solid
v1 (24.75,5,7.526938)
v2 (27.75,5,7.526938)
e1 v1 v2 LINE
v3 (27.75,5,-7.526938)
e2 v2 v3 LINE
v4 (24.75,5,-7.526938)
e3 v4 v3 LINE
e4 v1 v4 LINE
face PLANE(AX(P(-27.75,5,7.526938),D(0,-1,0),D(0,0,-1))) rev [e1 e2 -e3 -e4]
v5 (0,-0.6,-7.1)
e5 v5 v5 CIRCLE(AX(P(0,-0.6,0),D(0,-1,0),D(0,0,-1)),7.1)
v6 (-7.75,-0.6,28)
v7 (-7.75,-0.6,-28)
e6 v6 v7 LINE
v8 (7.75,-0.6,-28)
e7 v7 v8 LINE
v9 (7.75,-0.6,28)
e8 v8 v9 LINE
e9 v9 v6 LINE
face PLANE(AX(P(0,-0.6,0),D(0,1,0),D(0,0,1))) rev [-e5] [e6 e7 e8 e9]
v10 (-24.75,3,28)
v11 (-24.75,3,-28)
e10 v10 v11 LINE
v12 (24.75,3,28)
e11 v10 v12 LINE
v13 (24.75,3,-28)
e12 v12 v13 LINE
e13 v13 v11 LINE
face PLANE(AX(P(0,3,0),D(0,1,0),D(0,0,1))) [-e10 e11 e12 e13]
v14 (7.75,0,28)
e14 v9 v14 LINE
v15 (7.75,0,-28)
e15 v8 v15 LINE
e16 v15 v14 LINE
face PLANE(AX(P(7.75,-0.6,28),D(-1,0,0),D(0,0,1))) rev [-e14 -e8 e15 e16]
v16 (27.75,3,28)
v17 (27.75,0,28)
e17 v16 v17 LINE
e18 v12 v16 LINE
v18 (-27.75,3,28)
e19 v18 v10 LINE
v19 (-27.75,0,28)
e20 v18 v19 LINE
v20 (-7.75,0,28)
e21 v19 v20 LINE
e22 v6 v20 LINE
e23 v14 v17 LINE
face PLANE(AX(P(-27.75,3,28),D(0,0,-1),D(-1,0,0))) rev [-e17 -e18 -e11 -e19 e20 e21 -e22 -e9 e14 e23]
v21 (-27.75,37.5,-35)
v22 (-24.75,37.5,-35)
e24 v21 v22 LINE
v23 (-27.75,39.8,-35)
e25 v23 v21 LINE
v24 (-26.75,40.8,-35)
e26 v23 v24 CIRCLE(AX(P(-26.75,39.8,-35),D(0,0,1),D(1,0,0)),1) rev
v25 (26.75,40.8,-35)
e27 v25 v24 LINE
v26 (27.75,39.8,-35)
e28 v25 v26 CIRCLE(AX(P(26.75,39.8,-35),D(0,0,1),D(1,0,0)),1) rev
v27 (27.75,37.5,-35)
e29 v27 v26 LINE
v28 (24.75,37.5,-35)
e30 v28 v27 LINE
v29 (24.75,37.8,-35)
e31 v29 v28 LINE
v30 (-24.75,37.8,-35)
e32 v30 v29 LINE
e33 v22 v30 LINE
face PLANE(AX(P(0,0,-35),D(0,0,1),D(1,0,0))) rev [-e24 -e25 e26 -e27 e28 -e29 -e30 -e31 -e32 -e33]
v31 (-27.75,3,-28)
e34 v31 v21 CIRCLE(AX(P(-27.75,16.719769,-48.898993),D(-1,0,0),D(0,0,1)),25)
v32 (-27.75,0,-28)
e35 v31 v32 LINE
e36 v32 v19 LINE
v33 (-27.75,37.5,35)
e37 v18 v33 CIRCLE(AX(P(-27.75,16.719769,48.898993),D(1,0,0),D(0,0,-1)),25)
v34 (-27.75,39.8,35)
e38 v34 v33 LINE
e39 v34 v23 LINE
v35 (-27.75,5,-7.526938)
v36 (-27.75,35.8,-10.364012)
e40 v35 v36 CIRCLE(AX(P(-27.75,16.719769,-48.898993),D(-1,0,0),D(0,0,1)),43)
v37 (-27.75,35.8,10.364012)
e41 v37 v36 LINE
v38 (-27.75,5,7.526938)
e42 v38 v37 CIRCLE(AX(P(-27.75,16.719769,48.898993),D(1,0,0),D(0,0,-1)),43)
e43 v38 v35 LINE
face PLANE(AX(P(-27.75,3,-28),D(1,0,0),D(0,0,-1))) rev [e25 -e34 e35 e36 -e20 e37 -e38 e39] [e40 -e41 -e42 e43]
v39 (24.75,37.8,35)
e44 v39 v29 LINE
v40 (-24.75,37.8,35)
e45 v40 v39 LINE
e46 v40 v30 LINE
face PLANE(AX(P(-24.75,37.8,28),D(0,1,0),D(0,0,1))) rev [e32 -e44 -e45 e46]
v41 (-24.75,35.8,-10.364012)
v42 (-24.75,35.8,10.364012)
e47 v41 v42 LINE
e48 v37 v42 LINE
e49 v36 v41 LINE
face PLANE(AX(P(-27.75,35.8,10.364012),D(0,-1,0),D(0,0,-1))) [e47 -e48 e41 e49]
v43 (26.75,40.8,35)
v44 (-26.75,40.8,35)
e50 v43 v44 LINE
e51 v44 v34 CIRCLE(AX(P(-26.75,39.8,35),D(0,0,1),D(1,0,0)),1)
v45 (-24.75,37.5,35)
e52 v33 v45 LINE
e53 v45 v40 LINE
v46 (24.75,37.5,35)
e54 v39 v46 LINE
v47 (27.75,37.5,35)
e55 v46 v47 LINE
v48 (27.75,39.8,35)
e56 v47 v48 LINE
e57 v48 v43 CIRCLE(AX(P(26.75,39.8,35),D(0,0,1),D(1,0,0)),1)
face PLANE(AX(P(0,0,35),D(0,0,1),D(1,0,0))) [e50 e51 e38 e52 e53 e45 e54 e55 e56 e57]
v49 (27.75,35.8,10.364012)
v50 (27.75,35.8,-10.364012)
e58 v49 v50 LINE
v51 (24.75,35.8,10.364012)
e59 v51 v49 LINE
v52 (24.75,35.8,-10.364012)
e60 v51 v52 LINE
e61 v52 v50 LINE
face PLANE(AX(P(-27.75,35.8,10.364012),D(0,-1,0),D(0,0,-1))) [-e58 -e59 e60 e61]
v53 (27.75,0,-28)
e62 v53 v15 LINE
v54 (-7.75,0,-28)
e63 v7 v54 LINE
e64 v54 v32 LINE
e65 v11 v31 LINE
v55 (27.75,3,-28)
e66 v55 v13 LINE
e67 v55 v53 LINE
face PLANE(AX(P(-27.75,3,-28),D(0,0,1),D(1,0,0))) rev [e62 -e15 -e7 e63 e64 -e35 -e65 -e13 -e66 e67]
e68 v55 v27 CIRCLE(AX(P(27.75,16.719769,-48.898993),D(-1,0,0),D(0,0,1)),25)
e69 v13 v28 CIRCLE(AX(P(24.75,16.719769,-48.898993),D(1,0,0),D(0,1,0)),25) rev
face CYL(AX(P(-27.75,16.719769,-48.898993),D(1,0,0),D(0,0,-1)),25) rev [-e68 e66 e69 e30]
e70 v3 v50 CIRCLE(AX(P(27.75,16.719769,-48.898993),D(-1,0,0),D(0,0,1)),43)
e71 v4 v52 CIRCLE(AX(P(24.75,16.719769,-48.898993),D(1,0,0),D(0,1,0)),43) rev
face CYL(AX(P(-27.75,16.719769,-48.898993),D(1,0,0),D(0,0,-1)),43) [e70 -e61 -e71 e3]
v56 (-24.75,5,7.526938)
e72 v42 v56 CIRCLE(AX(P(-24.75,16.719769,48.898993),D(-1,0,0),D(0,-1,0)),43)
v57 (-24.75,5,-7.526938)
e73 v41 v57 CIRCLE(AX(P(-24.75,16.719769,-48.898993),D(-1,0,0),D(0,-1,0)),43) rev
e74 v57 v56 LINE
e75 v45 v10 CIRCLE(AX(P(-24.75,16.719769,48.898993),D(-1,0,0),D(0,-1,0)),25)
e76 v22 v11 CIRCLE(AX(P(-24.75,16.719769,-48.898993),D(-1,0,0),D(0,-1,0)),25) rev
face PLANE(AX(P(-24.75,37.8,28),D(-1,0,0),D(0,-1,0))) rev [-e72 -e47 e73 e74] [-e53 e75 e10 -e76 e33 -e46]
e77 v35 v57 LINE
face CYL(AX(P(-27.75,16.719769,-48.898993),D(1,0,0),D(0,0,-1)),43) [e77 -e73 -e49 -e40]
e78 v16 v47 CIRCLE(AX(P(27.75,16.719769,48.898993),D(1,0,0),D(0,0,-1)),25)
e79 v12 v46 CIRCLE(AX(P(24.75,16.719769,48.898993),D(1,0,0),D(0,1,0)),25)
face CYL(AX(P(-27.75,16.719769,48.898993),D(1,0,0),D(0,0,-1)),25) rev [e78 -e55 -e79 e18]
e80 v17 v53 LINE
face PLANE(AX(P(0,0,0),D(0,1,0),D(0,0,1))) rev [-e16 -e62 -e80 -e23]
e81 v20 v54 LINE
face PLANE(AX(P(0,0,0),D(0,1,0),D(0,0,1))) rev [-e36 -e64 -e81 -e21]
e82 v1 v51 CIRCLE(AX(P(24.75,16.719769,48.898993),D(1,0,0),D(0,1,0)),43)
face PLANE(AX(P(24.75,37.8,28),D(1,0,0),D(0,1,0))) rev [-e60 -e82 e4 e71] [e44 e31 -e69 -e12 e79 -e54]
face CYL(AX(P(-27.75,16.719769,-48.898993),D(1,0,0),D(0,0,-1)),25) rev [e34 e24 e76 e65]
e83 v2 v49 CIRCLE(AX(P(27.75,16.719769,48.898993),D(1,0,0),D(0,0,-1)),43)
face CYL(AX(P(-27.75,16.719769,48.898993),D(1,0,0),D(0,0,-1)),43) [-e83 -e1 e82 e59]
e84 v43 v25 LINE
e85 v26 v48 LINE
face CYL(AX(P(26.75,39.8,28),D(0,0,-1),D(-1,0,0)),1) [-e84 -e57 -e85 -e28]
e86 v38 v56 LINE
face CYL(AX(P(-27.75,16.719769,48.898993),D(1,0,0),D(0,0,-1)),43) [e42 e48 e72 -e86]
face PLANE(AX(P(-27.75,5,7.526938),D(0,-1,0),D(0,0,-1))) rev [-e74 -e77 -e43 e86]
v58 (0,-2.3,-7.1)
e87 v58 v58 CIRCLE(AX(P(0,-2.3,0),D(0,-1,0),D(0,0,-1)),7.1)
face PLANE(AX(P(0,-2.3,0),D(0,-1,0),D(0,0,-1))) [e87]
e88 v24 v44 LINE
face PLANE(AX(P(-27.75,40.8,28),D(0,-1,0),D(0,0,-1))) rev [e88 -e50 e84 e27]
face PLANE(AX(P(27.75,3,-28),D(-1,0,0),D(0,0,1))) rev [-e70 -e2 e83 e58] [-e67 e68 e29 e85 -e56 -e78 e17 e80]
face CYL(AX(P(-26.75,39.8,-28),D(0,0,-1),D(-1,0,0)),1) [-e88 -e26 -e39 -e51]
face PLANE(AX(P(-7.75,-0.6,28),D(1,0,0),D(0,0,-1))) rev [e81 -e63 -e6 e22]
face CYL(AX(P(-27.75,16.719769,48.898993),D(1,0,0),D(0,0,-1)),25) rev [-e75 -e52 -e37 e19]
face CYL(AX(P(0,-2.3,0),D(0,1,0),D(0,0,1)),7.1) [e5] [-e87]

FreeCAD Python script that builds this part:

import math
import FreeCAD as App
import Part
import Sketcher
from FreeCAD import Vector
Q = App.Units.Quantity


def edges_at(feature, points):
    """Names of the edges that pass closest to the given points."""
    edges = feature.Shape.Edges
    near = lambda p: min(range(len(edges)), key=lambda i: edges[i].distToShape(Part.Vertex(*p))[0])
    return sorted({f"Edge{near(p) + 1}" for p in points})

doc = App.newDocument("Part")
body = doc.addObject("PartDesign::Body", "Body")

# Sketch on XZ plane
sketch1 = body.newObject("Sketcher::SketchObject", "Sketch")
sketch1.AttachmentSupport = (doc.getObject("XZ_Plane"), [""])
sketch1.MapMode = "FlatFace"
sketch1.addGeometry(Part.LineSegment(Vector(-28, -28, 0), Vector(-28, 28, 0)), False)
sketch1.addGeometry(Part.LineSegment(Vector(-28, 28, 0), Vector(28, 28, 0)), False)
sketch1.addGeometry(Part.LineSegment(Vector(28, 28, 0), Vector(28, -28, 0)), False)
sketch1.addGeometry(Part.LineSegment(Vector(28, -28, 0), Vector(-28, -28, 0)), False)
sketch1.addConstraint(Sketcher.Constraint("Coincident", 0, 2, 1, 1))
sketch1.addConstraint(Sketcher.Constraint("Coincident", 1, 2, 2, 1))
sketch1.addConstraint(Sketcher.Constraint("Coincident", 2, 2, 3, 1))
sketch1.addConstraint(Sketcher.Constraint("Coincident", 3, 2, 0, 1))
sketch1.addConstraint(Sketcher.Constraint("Vertical", 0))
sketch1.addConstraint(Sketcher.Constraint("Horizontal", 1))
sketch1.addConstraint(Sketcher.Constraint("Vertical", 2))
sketch1.addConstraint(Sketcher.Constraint("Horizontal", 3))
sketch1.addConstraint(Sketcher.Constraint("Symmetric", 0, 2, 2, 2, -1, 1))
sketch1.addConstraint(Sketcher.Constraint("DistanceY", 0, 1, 0, 2, Q("56 mm")))
sketch1.addConstraint(Sketcher.Constraint("DistanceX", 1, 1, 1, 2, Q("55.5 mm")))
pad1 = body.newObject("PartDesign::Pad", "Pad")
pad1.Profile = sketch1
pad1.Length = 3
pad1.Reversed = True

# Sketch on XY plane
sketch2 = body.newObject("Sketcher::SketchObject", "Sketch001")
sketch2.AttachmentSupport = (doc.getObject("XY_Plane"), [""])
sketch2.MapMode = "FlatFace"
sketch2.addGeometry(Part.LineSegment(Vector(-27.8, 40.8, 0), Vector(-27.8, 3, 0)), False)
sketch2.addGeometry(Part.LineSegment(Vector(-27.8, 3, 0), Vector(-24.8, 3, 0)), False)
sketch2.addGeometry(Part.LineSegment(Vector(-24.8, 3, 0), Vector(-24.8, 37.8, 0)), False)
sketch2.addGeometry(Part.LineSegment(Vector(-24.8, 37.8, 0), Vector(24.8, 37.8, 0)), False)
sketch2.addGeometry(Part.LineSegment(Vector(24.8, 37.8, 0), Vector(24.8, 3, 0)), False)
sketch2.addGeometry(Part.LineSegment(Vector(24.8, 3, 0), Vector(27.8, 3, 0)), False)
sketch2.addGeometry(Part.LineSegment(Vector(27.8, 3, 0), Vector(27.8, 40.8, 0)), False)
sketch2.addGeometry(Part.LineSegment(Vector(27.8, 40.8, 0), Vector(-27.8, 40.8, 0)), False)
sketch2.addConstraint(Sketcher.Constraint("Coincident", 0, 2, 1, 1))
sketch2.addConstraint(Sketcher.Constraint("Coincident", 1, 2, 2, 1))
sketch2.addConstraint(Sketcher.Constraint("Coincident", 2, 2, 3, 1))
sketch2.addConstraint(Sketcher.Constraint("Coincident", 3, 2, 4, 1))
sketch2.addConstraint(Sketcher.Constraint("Coincident", 4, 2, 5, 1))
sketch2.addConstraint(Sketcher.Constraint("Coincident", 5, 2, 6, 1))
sketch2.addConstraint(Sketcher.Constraint("Coincident", 6, 2, 7, 1))
sketch2.addConstraint(Sketcher.Constraint("Coincident", 7, 2, 0, 1))
sketch2.addConstraint(Sketcher.Constraint("Vertical", 0))
sketch2.addConstraint(Sketcher.Constraint("Horizontal", 1))
sketch2.addConstraint(Sketcher.Constraint("Vertical", 2))
sketch2.addConstraint(Sketcher.Constraint("Horizontal", 3))
sketch2.addConstraint(Sketcher.Constraint("Vertical", 4))
sketch2.addConstraint(Sketcher.Constraint("Horizontal", 5))
sketch2.addConstraint(Sketcher.Constraint("Vertical", 6))
sketch2.addConstraint(Sketcher.Constraint("Horizontal", 7))
sketch2.addConstraint(Sketcher.Constraint("Symmetric", 1, 2, 4, 2, -2))
sketch2.addConstraint(Sketcher.Constraint("Equal", 1, 5))
sketch2.addConstraint(Sketcher.Constraint("DistanceX", 1, 1, 1, 2, Q("3 mm")))
sketch2.addConstraint(Sketcher.Constraint("DistanceX", 3, 1, 3, 2, Q("49.5 mm")))
sketch2.addConstraint(Sketcher.Constraint("DistanceY", 0, 2, 0, 1, Q("37.8 mm")))
sketch2.addConstraint(Sketcher.Constraint("DistanceY", 2, 1, 2, 2, Q("34.8 mm")))
sketch2.addConstraint(Sketcher.Constraint("DistanceY", -1, 1, 0, 2, Q("3 mm")))
pad2 = body.newObject("PartDesign::Pad", "Pad001")
pad2.Profile = sketch2
pad2.Length = 56
pad2.Midplane = True

# Sketch on XY plane
sketch3 = body.newObject("Sketcher::SketchObject", "Sketch002")
sketch3.AttachmentSupport = (doc.getObject("XY_Plane"), [""])
sketch3.MapMode = "FlatFace"
sketch3.addGeometry(Part.LineSegment(Vector(27.8, 40.8, 0), Vector(-27.8, 40.8, 0)), False)
sketch3.addGeometry(Part.LineSegment(Vector(-27.8, 40.8, 0), Vector(-27.8, 3, 0)), False)
sketch3.addGeometry(Part.LineSegment(Vector(-27.8, 3, 0), Vector(-24.8, 3, 0)), False)
sketch3.addGeometry(Part.LineSegment(Vector(-24.8, 3, 0), Vector(-24.8, 37.8, 0)), False)
sketch3.addGeometry(Part.LineSegment(Vector(-24.8, 37.8, 0), Vector(24.8, 37.8, 0)), False)
sketch3.addGeometry(Part.LineSegment(Vector(24.8, 37.8, 0), Vector(24.8, 3, 0)), False)
sketch3.addGeometry(Part.LineSegment(Vector(24.8, 3, 0), Vector(27.8, 3, 0)), False)
sketch3.addGeometry(Part.LineSegment(Vector(27.8, 3, 0), Vector(27.8, 40.8, 0)), False)
sketch3.addConstraint(Sketcher.Constraint("Coincident", 0, 2, 1, 1))
sketch3.addConstraint(Sketcher.Constraint("Coincident", 1, 2, 2, 1))
sketch3.addConstraint(Sketcher.Constraint("Coincident", 2, 2, 3, 1))
sketch3.addConstraint(Sketcher.Constraint("Coincident", 3, 2, 4, 1))
sketch3.addConstraint(Sketcher.Constraint("Coincident", 4, 2, 5, 1))
sketch3.addConstraint(Sketcher.Constraint("Coincident", 5, 2, 6, 1))
sketch3.addConstraint(Sketcher.Constraint("Coincident", 6, 2, 7, 1))
sketch3.addConstraint(Sketcher.Constraint("Coincident", 7, 2, 0, 1))
sketch3.addConstraint(Sketcher.Constraint("Horizontal", 0))
sketch3.addConstraint(Sketcher.Constraint("Vertical", 1))
sketch3.addConstraint(Sketcher.Constraint("Horizontal", 2))
sketch3.addConstraint(Sketcher.Constraint("Vertical", 3))
sketch3.addConstraint(Sketcher.Constraint("Horizontal", 4))
sketch3.addConstraint(Sketcher.Constraint("Vertical", 5))
sketch3.addConstraint(Sketcher.Constraint("Horizontal", 6))
sketch3.addConstraint(Sketcher.Constraint("Vertical", 7))
sketch3.addConstraint(Sketcher.Constraint("Symmetric", 2, 2, 5, 2, -2))
sketch3.addConstraint(Sketcher.Constraint("Equal", 2, 6))
sketch3.addConstraint(Sketcher.Constraint("DistanceX", 2, 1, 2, 2, Q("3 mm")))
sketch3.addConstraint(Sketcher.Constraint("DistanceX", 0, 2, 0, 1, Q("55.5 mm")))
sketch3.addConstraint(Sketcher.Constraint("DistanceY", 1, 2, 1, 1, Q("37.8 mm")))
sketch3.addConstraint(Sketcher.Constraint("DistanceY", 3, 1, 3, 2, Q("34.8 mm")))
sketch3.addConstraint(Sketcher.Constraint("DistanceY", -1, 1, 1, 2, Q("3 mm")))
pad3 = body.newObject("PartDesign::Pad", "Pad002")
pad3.Profile = sketch3
pad3.Length = 70
pad3.Midplane = True

# Sketch on YZ plane
sketch4 = body.newObject("Sketcher::SketchObject", "Sketch003")
sketch4.AttachmentSupport = (doc.getObject("YZ_Plane"), [""])
sketch4.MapMode = "FlatFace"
sketch4.addGeometry(Part.LineSegment(Vector(36, -10, 0), Vector(36, 10, 0)), False)
sketch4.addGeometry(Part.ArcOfCircle(Part.Circle(Vector(17, 49, 0), Vector(0, 0, 1), 43), math.radians(-106), math.radians(-64)), False)
sketch4.addGeometry(Part.LineSegment(Vector(5, 8, 0), Vector(5, -8, 0)), False)
sketch4.addGeometry(Part.ArcOfCircle(Part.Circle(Vector(17, -49, 0), Vector(0, 0, 1), 43), math.radians(64), math.radians(106)), False)
sketch4.addGeometry(Part.LineSegment(Vector(38, 35, 0), Vector(3, 35, 0)), False)
sketch4.addGeometry(Part.LineSegment(Vector(3, 35, 0), Vector(3, 28, 0)), False)
sketch4.addGeometry(Part.ArcOfCircle(Part.Circle(Vector(17, 49, 0), Vector(0, 0, 1), 25), math.radians(-123), math.radians(-34)), False)
sketch4.addGeometry(Part.LineSegment(Vector(3, -28, 0), Vector(3, -35, 0)), False)
sketch4.addGeometry(Part.LineSegment(Vector(3, -35, 0), Vector(38, -35, 0)), False)
sketch4.addGeometry(Part.ArcOfCircle(Part.Circle(Vector(17, -49, 0), Vector(0, 0, 1), 25), math.radians(34), math.radians(123)), False)
sketch4.addConstraint(Sketcher.Constraint("Coincident", 0, 2, 1, 2))
sketch4.addConstraint(Sketcher.Constraint("Coincident", 1, 1, 2, 1))
sketch4.addConstraint(Sketcher.Constraint("Coincident", 2, 2, 3, 2))
sketch4.addConstraint(Sketcher.Constraint("Coincident", 3, 1, 0, 1))
sketch4.addConstraint(Sketcher.Constraint("Coincident", 4, 2, 5, 1))
sketch4.addConstraint(Sketcher.Constraint("Coincident", 5, 2, 6, 1))
sketch4.addConstraint(Sketcher.Constraint("Coincident", 6, 2, 4, 1))
sketch4.addConstraint(Sketcher.Constraint("Coincident", 7, 2, 8, 1))
sketch4.addConstraint(Sketcher.Constraint("Coincident", 8, 2, 9, 1))
sketch4.addConstraint(Sketcher.Constraint("Coincident", 9, 2, 7, 1))
sketch4.addConstraint(Sketcher.Constraint("Vertical", 0))
sketch4.addConstraint(Sketcher.Constraint("Vertical", 2))
sketch4.addConstraint(Sketcher.Constraint("Horizontal", 4))
sketch4.addConstraint(Sketcher.Constraint("Vertical", 5))
sketch4.addConstraint(Sketcher.Constraint("Vertical", 7))
sketch4.addConstraint(Sketcher.Constraint("Horizontal", 8))
sketch4.addConstraint(Sketcher.Constraint("Coincident", 6, 3, 1, 3))
sketch4.addConstraint(Sketcher.Constraint("Coincident", 9, 3, 3, 3))
sketch4.addConstraint(Sketcher.Constraint("Equal", 1, 3))
sketch4.addConstraint(Sketcher.Constraint("Equal", 6, 9))
sketch4.addConstraint(Sketcher.Constraint("Symmetric", 1, 3, 3, 3, -1))
sketch4.addConstraint(Sketcher.Constraint("Symmetric", 4, 2, 7, 2, -1))
sketch4.addConstraint(Sketcher.Constraint("Radius", 1, Q("43 mm")))
sketch4.addConstraint(Sketcher.Constraint("Radius", 6, Q("25 mm")))
sketch4.addConstraint(Sketcher.Constraint("DistanceY", 5, 2, 5, 1, Q("7 mm")))
sketch4.addConstraint(Sketcher.Constraint("DistanceX", 4, 2, 4, 1, Q("34.5 mm")))
sketch4.addConstraint(Sketcher.Constraint("DistanceX", -1, 1, 1, 1, Q("5 mm")))
sketch4.addConstraint(Sketcher.Constraint("DistanceX", -1, 1, 4, 2, Q("3 mm")))
sketch4.addConstraint(Sketcher.Constraint("DistanceY", -1, 1, 4, 2, Q("35 mm")))
sketch4.addConstraint(Sketcher.Constraint("DistanceX", -1, 1, 0, 2, Q("35.8 mm")))
pocket1 = body.newObject("PartDesign::Pocket", "Pocket")
pocket1.Profile = sketch4
pocket1.Type = "ThroughAll"
pocket1.Midplane = True

# Sketch on XZ plane
sketch5 = body.newObject("Sketcher::SketchObject", "Sketch004")
sketch5.AttachmentSupport = (doc.getObject("XZ_Plane"), [""])
sketch5.MapMode = "FlatFace"
sketch5.addGeometry(Part.LineSegment(Vector(-8, 28, 0), Vector(-8, -28, 0)), False)
sketch5.addGeometry(Part.LineSegment(Vector(-8, -28, 0), Vector(8, -28, 0)), False)
sketch5.addGeometry(Part.LineSegment(Vector(8, -28, 0), Vector(8, 28, 0)), False)
sketch5.addGeometry(Part.LineSegment(Vector(8, 28, 0), Vector(-8, 28, 0)), False)
sketch5.addConstraint(Sketcher.Constraint("Coincident", 0, 2, 1, 1))
sketch5.addConstraint(Sketcher.Constraint("Coincident", 1, 2, 2, 1))
sketch5.addConstraint(Sketcher.Constraint("Coincident", 2, 2, 3, 1))
sketch5.addConstraint(Sketcher.Constraint("Coincident", 3, 2, 0, 1))
sketch5.addConstraint(Sketcher.Constraint("Vertical", 0))
sketch5.addConstraint(Sketcher.Constraint("Horizontal", 1))
sketch5.addConstraint(Sketcher.Constraint("Vertical", 2))
sketch5.addConstraint(Sketcher.Constraint("Horizontal", 3))
sketch5.addConstraint(Sketcher.Constraint("Symmetric", 0, 2, 2, 2, -1, 1))
sketch5.addConstraint(Sketcher.Constraint("DistanceY", 0, 2, 0, 1, Q("56 mm")))
sketch5.addConstraint(Sketcher.Constraint("DistanceX", 1, 1, 1, 2, Q("15.5 mm")))
pad4 = body.newObject("PartDesign::Pad", "Pad003")
pad4.Profile = sketch5
pad4.Length = 0.6

# Sketch on XZ plane
sketch6 = body.newObject("Sketcher::SketchObject", "Sketch005")
sketch6.AttachmentSupport = (doc.getObject("XZ_Plane"), [""])
sketch6.MapMode = "FlatFace"
sketch6.AttachmentOffset = App.Placement(Vector(0, 0, 0.6), App.Rotation())
sketch6.addGeometry(Part.Circle(Vector(0, 0, 0), Vector(0, 0, 1), 7), False)
sketch6.addConstraint(Sketcher.Constraint("Coincident", 0, 3, -1, 1))
sketch6.addConstraint(Sketcher.Constraint("Diameter", 0, Q("14.2 mm")))
pad5 = body.newObject("PartDesign::Pad", "Pad004")
pad5.Profile = sketch6
pad5.Length = 1.7
doc.recompute()

fillet = body.newObject("PartDesign::Fillet", "Fillet")
fillet.Base = (pad5, edges_at(pad5, [(27.75, 40.8, 0), (-27.75, 40.8, 0)]))
fillet.Radius = 1

doc.recompute()
